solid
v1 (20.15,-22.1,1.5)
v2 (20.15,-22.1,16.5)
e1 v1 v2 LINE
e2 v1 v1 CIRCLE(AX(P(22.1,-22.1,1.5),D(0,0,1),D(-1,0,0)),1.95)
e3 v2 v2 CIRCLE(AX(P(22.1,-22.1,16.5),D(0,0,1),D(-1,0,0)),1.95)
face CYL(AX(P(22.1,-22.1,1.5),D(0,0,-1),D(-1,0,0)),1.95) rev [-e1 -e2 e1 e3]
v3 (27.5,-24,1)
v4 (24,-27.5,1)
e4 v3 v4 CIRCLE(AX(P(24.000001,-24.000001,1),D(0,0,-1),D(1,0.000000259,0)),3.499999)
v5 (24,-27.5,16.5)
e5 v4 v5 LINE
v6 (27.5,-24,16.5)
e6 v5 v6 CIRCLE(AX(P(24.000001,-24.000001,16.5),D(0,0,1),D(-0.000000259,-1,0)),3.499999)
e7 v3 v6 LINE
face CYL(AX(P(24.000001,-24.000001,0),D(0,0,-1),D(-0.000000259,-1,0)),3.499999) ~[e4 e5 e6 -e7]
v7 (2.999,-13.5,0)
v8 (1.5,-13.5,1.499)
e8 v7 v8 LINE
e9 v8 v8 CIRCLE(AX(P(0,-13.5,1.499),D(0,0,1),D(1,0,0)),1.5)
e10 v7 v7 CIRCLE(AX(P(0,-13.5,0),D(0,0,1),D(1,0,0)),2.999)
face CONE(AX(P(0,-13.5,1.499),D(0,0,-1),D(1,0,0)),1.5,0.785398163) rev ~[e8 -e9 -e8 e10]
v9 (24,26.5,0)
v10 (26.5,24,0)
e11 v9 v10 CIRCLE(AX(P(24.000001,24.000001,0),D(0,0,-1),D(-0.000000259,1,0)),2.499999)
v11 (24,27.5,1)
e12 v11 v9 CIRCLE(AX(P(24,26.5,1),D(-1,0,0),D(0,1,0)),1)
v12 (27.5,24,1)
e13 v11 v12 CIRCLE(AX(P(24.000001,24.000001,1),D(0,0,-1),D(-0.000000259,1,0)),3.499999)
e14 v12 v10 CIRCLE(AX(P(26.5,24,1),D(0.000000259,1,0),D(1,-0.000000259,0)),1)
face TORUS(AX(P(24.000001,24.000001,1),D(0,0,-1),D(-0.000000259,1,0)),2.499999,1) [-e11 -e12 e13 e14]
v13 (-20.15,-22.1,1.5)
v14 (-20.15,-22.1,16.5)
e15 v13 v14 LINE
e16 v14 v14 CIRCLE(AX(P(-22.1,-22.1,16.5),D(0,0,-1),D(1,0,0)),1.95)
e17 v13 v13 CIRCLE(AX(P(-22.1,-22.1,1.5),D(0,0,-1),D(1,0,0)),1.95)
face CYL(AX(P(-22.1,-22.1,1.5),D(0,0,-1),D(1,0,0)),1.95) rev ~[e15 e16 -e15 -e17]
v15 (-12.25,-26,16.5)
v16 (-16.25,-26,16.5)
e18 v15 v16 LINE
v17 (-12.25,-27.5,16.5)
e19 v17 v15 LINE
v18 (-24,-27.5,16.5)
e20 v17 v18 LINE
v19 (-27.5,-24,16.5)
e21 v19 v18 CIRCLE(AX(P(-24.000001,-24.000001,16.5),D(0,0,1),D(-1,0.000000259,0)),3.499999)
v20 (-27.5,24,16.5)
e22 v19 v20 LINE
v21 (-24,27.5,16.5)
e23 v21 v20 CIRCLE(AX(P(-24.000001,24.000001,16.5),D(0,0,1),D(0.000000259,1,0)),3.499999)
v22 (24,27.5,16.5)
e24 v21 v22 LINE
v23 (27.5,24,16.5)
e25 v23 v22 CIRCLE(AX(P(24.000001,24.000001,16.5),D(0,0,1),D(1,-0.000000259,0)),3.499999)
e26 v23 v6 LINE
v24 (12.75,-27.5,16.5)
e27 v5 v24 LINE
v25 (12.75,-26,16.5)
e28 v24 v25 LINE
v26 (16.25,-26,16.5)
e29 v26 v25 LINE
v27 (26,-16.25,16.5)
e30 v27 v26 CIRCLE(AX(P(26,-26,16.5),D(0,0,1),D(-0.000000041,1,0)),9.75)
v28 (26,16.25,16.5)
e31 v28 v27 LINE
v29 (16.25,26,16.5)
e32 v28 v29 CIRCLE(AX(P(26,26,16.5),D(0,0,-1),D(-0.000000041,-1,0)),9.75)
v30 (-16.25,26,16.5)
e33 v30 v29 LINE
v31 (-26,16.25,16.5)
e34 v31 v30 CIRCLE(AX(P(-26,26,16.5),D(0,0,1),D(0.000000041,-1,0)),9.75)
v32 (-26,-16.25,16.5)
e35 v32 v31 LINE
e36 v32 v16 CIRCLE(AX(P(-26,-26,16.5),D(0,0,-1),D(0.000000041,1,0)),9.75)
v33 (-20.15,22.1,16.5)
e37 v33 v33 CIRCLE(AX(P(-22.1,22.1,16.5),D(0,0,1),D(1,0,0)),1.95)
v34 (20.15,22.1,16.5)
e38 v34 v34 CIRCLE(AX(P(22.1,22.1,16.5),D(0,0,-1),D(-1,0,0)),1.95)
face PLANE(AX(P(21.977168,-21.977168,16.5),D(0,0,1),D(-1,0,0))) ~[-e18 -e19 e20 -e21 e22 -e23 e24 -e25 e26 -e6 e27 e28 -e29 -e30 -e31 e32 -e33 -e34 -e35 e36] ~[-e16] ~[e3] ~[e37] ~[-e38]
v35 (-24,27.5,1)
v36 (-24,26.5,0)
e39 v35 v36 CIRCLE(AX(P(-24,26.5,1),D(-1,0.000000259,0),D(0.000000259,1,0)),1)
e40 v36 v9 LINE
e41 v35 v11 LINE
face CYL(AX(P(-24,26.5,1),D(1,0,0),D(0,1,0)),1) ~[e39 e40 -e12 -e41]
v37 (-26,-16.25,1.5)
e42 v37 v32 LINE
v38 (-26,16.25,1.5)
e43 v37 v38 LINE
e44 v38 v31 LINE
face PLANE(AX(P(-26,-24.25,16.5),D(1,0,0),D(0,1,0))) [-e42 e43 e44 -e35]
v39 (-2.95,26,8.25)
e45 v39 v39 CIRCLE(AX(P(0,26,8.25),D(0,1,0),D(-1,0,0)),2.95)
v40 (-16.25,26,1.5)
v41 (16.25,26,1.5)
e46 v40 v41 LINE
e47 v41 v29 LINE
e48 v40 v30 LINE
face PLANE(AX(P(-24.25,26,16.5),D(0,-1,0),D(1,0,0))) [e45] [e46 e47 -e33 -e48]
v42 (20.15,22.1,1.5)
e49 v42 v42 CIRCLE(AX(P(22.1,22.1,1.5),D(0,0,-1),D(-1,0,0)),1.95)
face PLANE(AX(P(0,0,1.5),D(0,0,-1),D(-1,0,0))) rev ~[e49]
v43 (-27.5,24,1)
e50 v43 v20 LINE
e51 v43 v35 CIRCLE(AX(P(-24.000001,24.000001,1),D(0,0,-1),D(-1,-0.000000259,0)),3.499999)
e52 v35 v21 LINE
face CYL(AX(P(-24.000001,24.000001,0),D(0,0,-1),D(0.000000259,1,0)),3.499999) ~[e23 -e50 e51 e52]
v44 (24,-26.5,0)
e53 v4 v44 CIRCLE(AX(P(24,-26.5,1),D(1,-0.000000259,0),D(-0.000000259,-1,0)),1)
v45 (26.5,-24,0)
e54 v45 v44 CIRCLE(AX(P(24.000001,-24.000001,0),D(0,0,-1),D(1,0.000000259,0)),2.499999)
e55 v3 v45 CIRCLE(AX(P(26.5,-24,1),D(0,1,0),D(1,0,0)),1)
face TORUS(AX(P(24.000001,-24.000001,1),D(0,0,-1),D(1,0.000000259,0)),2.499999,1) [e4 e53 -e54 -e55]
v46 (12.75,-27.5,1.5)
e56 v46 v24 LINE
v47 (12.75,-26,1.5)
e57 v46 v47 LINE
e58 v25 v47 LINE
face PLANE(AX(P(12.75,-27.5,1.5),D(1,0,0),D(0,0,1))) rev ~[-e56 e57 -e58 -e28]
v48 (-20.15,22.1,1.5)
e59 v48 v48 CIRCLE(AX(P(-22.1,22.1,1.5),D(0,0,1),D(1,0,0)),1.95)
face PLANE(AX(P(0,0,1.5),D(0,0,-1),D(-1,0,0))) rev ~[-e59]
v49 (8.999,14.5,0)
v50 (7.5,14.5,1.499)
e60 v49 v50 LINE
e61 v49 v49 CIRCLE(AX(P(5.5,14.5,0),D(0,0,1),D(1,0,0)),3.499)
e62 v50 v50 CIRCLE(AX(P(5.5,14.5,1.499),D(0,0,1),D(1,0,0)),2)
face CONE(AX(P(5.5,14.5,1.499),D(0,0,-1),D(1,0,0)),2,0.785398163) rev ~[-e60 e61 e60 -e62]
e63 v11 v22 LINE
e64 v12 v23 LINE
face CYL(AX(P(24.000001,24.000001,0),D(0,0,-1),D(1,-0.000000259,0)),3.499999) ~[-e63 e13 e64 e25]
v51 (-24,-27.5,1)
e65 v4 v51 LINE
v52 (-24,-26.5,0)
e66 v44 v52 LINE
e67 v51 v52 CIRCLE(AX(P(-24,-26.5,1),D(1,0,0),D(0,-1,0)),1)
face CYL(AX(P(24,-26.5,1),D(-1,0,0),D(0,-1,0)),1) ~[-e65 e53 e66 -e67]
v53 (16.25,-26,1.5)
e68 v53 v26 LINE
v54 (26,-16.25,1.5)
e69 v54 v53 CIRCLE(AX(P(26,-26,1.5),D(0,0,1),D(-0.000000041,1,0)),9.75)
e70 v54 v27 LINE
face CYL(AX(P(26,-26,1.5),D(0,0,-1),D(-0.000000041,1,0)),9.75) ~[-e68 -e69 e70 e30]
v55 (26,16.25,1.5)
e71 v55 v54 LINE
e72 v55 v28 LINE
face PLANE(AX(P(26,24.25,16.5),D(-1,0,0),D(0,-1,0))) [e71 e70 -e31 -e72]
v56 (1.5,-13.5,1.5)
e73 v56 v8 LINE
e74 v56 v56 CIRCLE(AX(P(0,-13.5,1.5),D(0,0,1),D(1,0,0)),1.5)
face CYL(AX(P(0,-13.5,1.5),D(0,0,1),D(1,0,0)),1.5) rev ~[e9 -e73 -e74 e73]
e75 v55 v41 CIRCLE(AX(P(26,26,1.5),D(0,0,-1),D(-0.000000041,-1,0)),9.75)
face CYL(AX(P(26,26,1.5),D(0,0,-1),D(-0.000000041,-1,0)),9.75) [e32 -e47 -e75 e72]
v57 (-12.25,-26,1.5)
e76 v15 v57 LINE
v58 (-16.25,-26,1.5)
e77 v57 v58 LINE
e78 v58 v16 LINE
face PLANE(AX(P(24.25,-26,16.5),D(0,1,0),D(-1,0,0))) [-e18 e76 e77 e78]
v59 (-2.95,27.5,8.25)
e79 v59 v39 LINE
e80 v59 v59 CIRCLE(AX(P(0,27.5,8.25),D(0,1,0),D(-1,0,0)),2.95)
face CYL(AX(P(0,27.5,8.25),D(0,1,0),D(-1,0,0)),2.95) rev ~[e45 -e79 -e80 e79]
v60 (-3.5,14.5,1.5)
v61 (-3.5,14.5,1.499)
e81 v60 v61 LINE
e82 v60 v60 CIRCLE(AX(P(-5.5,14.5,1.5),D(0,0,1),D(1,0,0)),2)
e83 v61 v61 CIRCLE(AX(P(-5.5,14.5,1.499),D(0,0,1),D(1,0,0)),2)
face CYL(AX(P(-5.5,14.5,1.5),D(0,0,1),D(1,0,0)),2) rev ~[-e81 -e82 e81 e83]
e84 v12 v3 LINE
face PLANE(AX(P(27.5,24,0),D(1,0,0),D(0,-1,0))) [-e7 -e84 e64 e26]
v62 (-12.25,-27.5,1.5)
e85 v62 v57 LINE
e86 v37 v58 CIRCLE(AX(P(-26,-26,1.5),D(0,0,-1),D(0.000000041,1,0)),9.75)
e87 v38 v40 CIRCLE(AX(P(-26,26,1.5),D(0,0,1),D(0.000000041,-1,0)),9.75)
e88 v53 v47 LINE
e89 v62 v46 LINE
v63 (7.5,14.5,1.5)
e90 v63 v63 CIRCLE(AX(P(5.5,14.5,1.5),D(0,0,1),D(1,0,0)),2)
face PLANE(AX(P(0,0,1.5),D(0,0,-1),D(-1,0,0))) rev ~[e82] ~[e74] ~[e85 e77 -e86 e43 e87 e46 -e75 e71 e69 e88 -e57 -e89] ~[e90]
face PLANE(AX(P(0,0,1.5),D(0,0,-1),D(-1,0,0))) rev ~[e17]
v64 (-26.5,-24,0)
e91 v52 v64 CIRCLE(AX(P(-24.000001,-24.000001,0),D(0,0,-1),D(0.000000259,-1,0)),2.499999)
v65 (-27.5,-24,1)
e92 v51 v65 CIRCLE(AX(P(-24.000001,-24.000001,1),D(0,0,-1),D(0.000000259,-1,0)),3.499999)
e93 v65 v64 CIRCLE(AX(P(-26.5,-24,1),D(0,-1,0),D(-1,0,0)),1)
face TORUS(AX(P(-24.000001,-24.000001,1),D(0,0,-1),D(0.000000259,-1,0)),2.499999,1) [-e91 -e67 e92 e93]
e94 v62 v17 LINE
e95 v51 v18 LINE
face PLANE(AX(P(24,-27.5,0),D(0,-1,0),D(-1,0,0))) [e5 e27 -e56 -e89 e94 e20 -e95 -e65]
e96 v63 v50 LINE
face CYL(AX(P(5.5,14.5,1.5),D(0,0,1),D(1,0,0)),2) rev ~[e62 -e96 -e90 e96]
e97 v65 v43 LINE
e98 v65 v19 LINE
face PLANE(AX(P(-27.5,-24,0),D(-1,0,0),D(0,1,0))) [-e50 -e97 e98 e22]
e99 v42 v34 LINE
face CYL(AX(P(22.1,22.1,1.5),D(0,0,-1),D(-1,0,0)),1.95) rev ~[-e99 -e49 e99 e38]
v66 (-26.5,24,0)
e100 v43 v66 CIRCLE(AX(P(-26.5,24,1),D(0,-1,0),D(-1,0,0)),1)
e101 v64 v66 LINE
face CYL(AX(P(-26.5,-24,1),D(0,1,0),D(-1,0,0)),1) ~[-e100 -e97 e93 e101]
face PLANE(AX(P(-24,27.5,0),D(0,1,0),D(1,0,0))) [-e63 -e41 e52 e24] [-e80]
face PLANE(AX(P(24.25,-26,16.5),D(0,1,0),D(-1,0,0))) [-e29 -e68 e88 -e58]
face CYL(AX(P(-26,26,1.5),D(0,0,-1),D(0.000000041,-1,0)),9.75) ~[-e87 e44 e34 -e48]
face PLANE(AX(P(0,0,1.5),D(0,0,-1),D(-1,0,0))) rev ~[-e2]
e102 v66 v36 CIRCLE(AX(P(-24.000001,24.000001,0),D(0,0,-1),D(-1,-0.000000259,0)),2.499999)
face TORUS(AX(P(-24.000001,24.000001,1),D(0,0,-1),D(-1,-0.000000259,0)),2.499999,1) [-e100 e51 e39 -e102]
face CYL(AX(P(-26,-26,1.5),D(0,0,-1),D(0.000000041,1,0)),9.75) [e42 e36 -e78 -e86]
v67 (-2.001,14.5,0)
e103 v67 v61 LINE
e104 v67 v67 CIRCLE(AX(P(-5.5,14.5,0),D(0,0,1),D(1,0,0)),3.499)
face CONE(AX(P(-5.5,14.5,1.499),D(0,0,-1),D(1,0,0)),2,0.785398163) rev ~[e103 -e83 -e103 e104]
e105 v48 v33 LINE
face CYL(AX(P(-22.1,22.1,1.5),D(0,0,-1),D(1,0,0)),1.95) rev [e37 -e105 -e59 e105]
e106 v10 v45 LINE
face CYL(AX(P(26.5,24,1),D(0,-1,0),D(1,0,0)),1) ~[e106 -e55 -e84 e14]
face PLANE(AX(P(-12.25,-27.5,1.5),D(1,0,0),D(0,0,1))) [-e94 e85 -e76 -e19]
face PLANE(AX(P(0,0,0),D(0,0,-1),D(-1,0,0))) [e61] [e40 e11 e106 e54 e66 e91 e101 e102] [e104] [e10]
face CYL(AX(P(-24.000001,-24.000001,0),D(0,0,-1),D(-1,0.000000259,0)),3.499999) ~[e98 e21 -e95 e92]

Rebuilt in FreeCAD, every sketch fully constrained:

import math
import FreeCAD as App
import Part
import Sketcher
from FreeCAD import Vector
Q = App.Units.Quantity


def edges_at(feature, points):
    """Names of the edges that pass closest to the given points."""
    edges = feature.Shape.Edges
    near = lambda p: min(range(len(edges)), key=lambda i: edges[i].distToShape(Part.Vertex(*p))[0])
    return sorted({f"Edge{near(p) + 1}" for p in points})


def add_polygon(sketch, points):
    """Adds a closed chain of lines whose ends are joined by coincident constraints."""
    first, n = sketch.GeometryCount, len(points)
    for a, b in zip(points, points[1:] + points[:1]):
        sketch.addGeometry(Part.LineSegment(App.Vector(*a, 0), App.Vector(*b, 0)), False)
    for i in range(n):
        sketch.addConstraint(Sketcher.Constraint("Coincident", first + i, 2, first + (i + 1) % n, 1))

doc = App.newDocument("Part")
params = doc.addObject("Spreadsheet::Sheet", "Params")
for row, (alias, value) in enumerate([
    ("sketch1_radius", "3.499999 mm"),
    ("sketch1_width", "48 mm"),
    ("pad1_length", "16.5 mm"),
    ("sketch2_radius", "1.75 mm"),
    ("sketch2_width", "48.5 mm"),
    ("pocket1_length", "15 mm"),
    ("sketch3_diameter", "3.9 mm"),
    ("sketch3_radius", "9.75 mm"),
    ("pad2_length", "15 mm"),
    ("sketch4_diameter", "3.9 mm"),
    ("sketch4_radius", "9.75 mm"),
    ("pad3_length", "15 mm"),
    ("fillet_radius", "1 mm"),
    ("sketch5_width", "25 mm"),
    ("sketch5_height", "15 mm"),
    ("pocket2_length", "5 mm"),
    ("sketch6_diameter", "3 mm"),
    ("sketch6_diameter2", "4 mm"),
    ("pocket3_length", "5 mm"),
    ("sketch7_diameter", "5.9 mm"),
    ("pocket4_length", "5 mm"),
    ("chamfer_size", "1.499 mm"),
], start=1):
    params.set(f"A{row}", alias)
    params.set(f"B{row}", "=" + value)
    params.setAlias(f"B{row}", alias)

body = doc.addObject("PartDesign::Body", "Body")

sketch1 = body.newObject("Sketcher::SketchObject", "Sketch")
sketch1.AttachmentSupport = (doc.getObject("XY_Plane"), [""])
sketch1.MapMode = "FlatFace"
sketch1.addGeometry([
    Part.LineSegment(Vector(24, 27.5, 0), Vector(-24, 27.5, 0)),
    Part.ArcOfCircle(Part.Circle(Vector(-24, 24, 0), Vector(0, 0, 1), 3.5), math.radians(90), math.radians(180)),
    Part.LineSegment(Vector(-27.5, 24, 0), Vector(-27.5, -24, 0)),
    Part.ArcOfCircle(Part.Circle(Vector(-24, -24, 0), Vector(0, 0, 1), 3.5), math.radians(180), math.radians(270)),
    Part.LineSegment(Vector(-24, -27.5, 0), Vector(24, -27.5, 0)),
    Part.ArcOfCircle(Part.Circle(Vector(24, -24, 0), Vector(0, 0, 1), 3.5), math.radians(-90), math.radians(0)),
    Part.LineSegment(Vector(27.5, -24, 0), Vector(27.5, 24, 0)),
    Part.ArcOfCircle(Part.Circle(Vector(24, 24, 0), Vector(0, 0, 1), 3.5), math.radians(0), math.radians(90)),
], False)
sketch1.addConstraint([
    Sketcher.Constraint("Tangent", 0, 2, 1, 1),
    Sketcher.Constraint("Tangent", 1, 2, 2, 1),
    Sketcher.Constraint("Tangent", 2, 2, 3, 1),
    Sketcher.Constraint("Tangent", 3, 2, 4, 1),
    Sketcher.Constraint("Tangent", 4, 2, 5, 1),
    Sketcher.Constraint("Tangent", 5, 2, 6, 1),
    Sketcher.Constraint("Tangent", 6, 2, 7, 1),
    Sketcher.Constraint("Tangent", 7, 2, 0, 1),
    Sketcher.Constraint("Horizontal", 0),
    Sketcher.Constraint("Vertical", 2),
    Sketcher.Constraint("Horizontal", 4),
    Sketcher.Constraint("Vertical", 6),
    Sketcher.Constraint("Equal", 1, 3),
    Sketcher.Constraint("Equal", 3, 5),
    Sketcher.Constraint("Equal", 5, 7),
    Sketcher.Constraint("Symmetric", 1, 3, 5, 3, -1, 1),
    Sketcher.Constraint("Equal", 4, 2),
    Sketcher.Constraint("Radius", 1, Q("3.499999 mm")),
    Sketcher.Constraint("DistanceX", 0, 2, 0, 1, Q("48 mm")),
])
sketch1.setExpression("Constraints[17]", "Params.sketch1_radius")
sketch1.setExpression("Constraints[18]", "Params.sketch1_width")
pad1 = body.newObject("PartDesign::Pad", "Pad")
pad1.Profile = sketch1
pad1.setExpression("Length", "Params.pad1_length")

sketch2 = body.newObject("Sketcher::SketchObject", "Sketch001")
sketch2.AttachmentSupport = (doc.getObject("XY_Plane"), [""])
sketch2.MapMode = "FlatFace"
sketch2.AttachmentOffset = App.Placement(Vector(0, 0, 16.5), App.Rotation())
sketch2.addGeometry([
    Part.LineSegment(Vector(24.2, 26, 0), Vector(-24.2, 26, 0)),
    Part.ArcOfCircle(Part.Circle(Vector(-24.3, 24.3, 0), Vector(0, 0, 1), 1.7), math.radians(90), math.radians(180)),
    Part.LineSegment(Vector(-26, 24.2, 0), Vector(-26, -24.2, 0)),
    Part.ArcOfCircle(Part.Circle(Vector(-24.3, -24.3, 0), Vector(0, 0, 1), 1.7), math.radians(180), math.radians(270)),
    Part.LineSegment(Vector(-24.2, -26, 0), Vector(24.2, -26, 0)),
    Part.ArcOfCircle(Part.Circle(Vector(24.3, -24.3, 0), Vector(0, 0, 1), 1.7), math.radians(-90), math.radians(0)),
    Part.LineSegment(Vector(26, -24.2, 0), Vector(26, 24.2, 0)),
    Part.ArcOfCircle(Part.Circle(Vector(24.3, 24.3, 0), Vector(0, 0, 1), 1.7), math.radians(0), math.radians(90)),
], False)
sketch2.addConstraint([
    Sketcher.Constraint("Tangent", 0, 2, 1, 1),
    Sketcher.Constraint("Tangent", 1, 2, 2, 1),
    Sketcher.Constraint("Tangent", 2, 2, 3, 1),
    Sketcher.Constraint("Tangent", 3, 2, 4, 1),
    Sketcher.Constraint("Tangent", 4, 2, 5, 1),
    Sketcher.Constraint("Tangent", 5, 2, 6, 1),
    Sketcher.Constraint("Tangent", 6, 2, 7, 1),
    Sketcher.Constraint("Tangent", 7, 2, 0, 1),
    Sketcher.Constraint("Horizontal", 0),
    Sketcher.Constraint("Vertical", 2),
    Sketcher.Constraint("Horizontal", 4),
    Sketcher.Constraint("Vertical", 6),
    Sketcher.Constraint("Equal", 1, 3),
    Sketcher.Constraint("Equal", 3, 5),
    Sketcher.Constraint("Equal", 5, 7),
    Sketcher.Constraint("Symmetric", 1, 3, 5, 3, -1, 1),
    Sketcher.Constraint("Equal", 4, 2),
    Sketcher.Constraint("Radius", 1, Q("1.75 mm")),
    Sketcher.Constraint("DistanceX", 0, 2, 0, 1, Q("48.5 mm")),
])
sketch2.setExpression("Constraints[17]", "Params.sketch2_radius")
sketch2.setExpression("Constraints[18]", "Params.sketch2_width")
pocket1 = body.newObject("PartDesign::Pocket", "Pocket")
pocket1.Profile = sketch2
pocket1.setExpression("Length", "Params.pocket1_length")

sketch3 = body.newObject("Sketcher::SketchObject", "Sketch002")
sketch3.AttachmentSupport = (doc.getObject("XY_Plane"), [""])
sketch3.MapMode = "FlatFace"
sketch3.AttachmentOffset = App.Placement(Vector(0, 0, 1.5), App.Rotation())
sketch3.addGeometry([
    Part.LineSegment(Vector(-26, 26, 0), Vector(-26, 16.2, 0)),
    Part.ArcOfCircle(Part.Circle(Vector(-26, 26, 0), Vector(0, 0, 1), 9.8), math.radians(-90), math.radians(0)),
    Part.LineSegment(Vector(-16.2, 26, 0), Vector(-26, 26, 0)),
    Part.Circle(Vector(-22.1, 22.1, 0), Vector(0, 0, 1), 1.9),
], False)
sketch3.addConstraint([
    Sketcher.Constraint("Coincident", 0, 2, 1, 1),
    Sketcher.Constraint("Coincident", 1, 2, 2, 1),
    Sketcher.Constraint("Coincident", 2, 2, 0, 1),
    Sketcher.Constraint("Vertical", 0),
    Sketcher.Constraint("Horizontal", 2),
    Sketcher.Constraint("Coincident", 2, 2, 1, 3),
    Sketcher.Constraint("Diameter", 3, Q("3.9 mm")),
    Sketcher.Constraint("Radius", 1, Q("9.75 mm")),
    Sketcher.Constraint("DistanceX", 1, 3, -1, 1, Q("26 mm")),
    Sketcher.Constraint("DistanceY", -1, 1, 1, 3, Q("26 mm")),
    Sketcher.Constraint("DistanceX", 3, 3, -1, 1, Q("22.1 mm")),
    Sketcher.Constraint("DistanceY", -1, 1, 3, 3, Q("22.1 mm")),
])
sketch3.setExpression("Constraints[6]", "Params.sketch3_diameter")
sketch3.setExpression("Constraints[7]", "Params.sketch3_radius")
pad2 = body.newObject("PartDesign::Pad", "Pad001")
pad2.Profile = sketch3
pad2.setExpression("Length", "Params.pad2_length")

sketch4 = body.newObject("Sketcher::SketchObject", "Sketch003")
sketch4.AttachmentSupport = (doc.getObject("XY_Plane"), [""])
sketch4.MapMode = "FlatFace"
sketch4.AttachmentOffset = App.Placement(Vector(0, 0, 1.5), App.Rotation())
sketch4.addGeometry([
    Part.LineSegment(Vector(26, 26, 0), Vector(26, 16.2, 0)),
    Part.ArcOfCircle(Part.Circle(Vector(26, 26, 0), Vector(0, 0, 1), 9.8), math.radians(-180), math.radians(-90)),
    Part.LineSegment(Vector(16.2, 26, 0), Vector(26, 26, 0)),
    Part.Circle(Vector(22.1, 22.1, 0), Vector(0, 0, 1), 1.9),
], False)
sketch4.addConstraint([
    Sketcher.Constraint("Coincident", 0, 2, 1, 2),
    Sketcher.Constraint("Coincident", 1, 1, 2, 1),
    Sketcher.Constraint("Coincident", 2, 2, 0, 1),
    Sketcher.Constraint("Vertical", 0),
    Sketcher.Constraint("Horizontal", 2),
    Sketcher.Constraint("Coincident", 2, 2, 1, 3),
    Sketcher.Constraint("Diameter", 3, Q("3.9 mm")),
    Sketcher.Constraint("Radius", 1, Q("9.75 mm")),
    Sketcher.Constraint("DistanceX", -1, 1, 1, 3, Q("26 mm")),
    Sketcher.Constraint("DistanceY", -1, 1, 1, 3, Q("26 mm")),
    Sketcher.Constraint("DistanceX", -1, 1, 3, 3, Q("22.1 mm")),
    Sketcher.Constraint("DistanceY", -1, 1, 3, 3, Q("22.1 mm")),
])
sketch4.setExpression("Constraints[6]", "Params.sketch4_diameter")
sketch4.setExpression("Constraints[7]", "Params.sketch4_radius")
pad3 = body.newObject("PartDesign::Pad", "Pad002")
pad3.Profile = sketch4
pad3.setExpression("Length", "Params.pad3_length")
doc.recompute()

mirrored = body.newObject("PartDesign::Mirrored", "Mirrored")
mirrored.Originals = [pad2, pad3]
mirrored.MirrorPlane = (doc.getObject("XZ_Plane"), [""])
body.Tip = mirrored
doc.recompute()

fillet = body.newObject("PartDesign::Fillet", "Fillet")
fillet.Base = (mirrored, edges_at(mirrored, [
    (-27.5, 0, 0),
    (-26.475, 26.475, 0),
    (0, 27.5, 0),
    (26.475, 26.475, 0),
    (27.5, 0, 0),
    (26.475, -26.475, 0),
    (0, -27.5, 0),
    (-26.475, -26.475, 0),
]))
fillet.setExpression("Radius", "Params.fillet_radius")

sketch5 = body.newObject("Sketcher::SketchObject", "Sketch004")
sketch5.AttachmentSupport = (doc.getObject("XZ_Plane"), [""])
sketch5.MapMode = "FlatFace"
sketch5.AttachmentOffset = App.Placement(Vector(0, 0, 27.5), App.Rotation())
add_polygon(sketch5, [(-12, 16), (-12, 2), (13, 2), (13, 16)])
sketch5.addConstraint([
    Sketcher.Constraint("Vertical", 0),
    Sketcher.Constraint("Horizontal", 1),
    Sketcher.Constraint("Vertical", 2),
    Sketcher.Constraint("Horizontal", 3),
    Sketcher.Constraint("DistanceX", 1, 1, 1, 2, Q("25 mm")),
    Sketcher.Constraint("DistanceY", 0, 2, 0, 1, Q("15 mm")),
    Sketcher.Constraint("DistanceY", -1, 1, 0, 2, Q("1.5 mm")),
    Sketcher.Constraint("DistanceX", 0, 2, -1, 1, Q("12.25 mm")),
])
sketch5.setExpression("Constraints[8]", "Params.sketch5_width")
sketch5.setExpression("Constraints[9]", "Params.sketch5_height")
pocket2 = body.newObject("PartDesign::Pocket", "Pocket001")
pocket2.Profile = sketch5
pocket2.setExpression("Length", "Params.pocket2_length")

sketch6 = body.newObject("Sketcher::SketchObject", "Sketch005")
sketch6.AttachmentSupport = (doc.getObject("XY_Plane"), [""])
sketch6.MapMode = "FlatFace"
sketch6.AttachmentOffset = App.Placement(Vector(0, 0, 1.5), App.Rotation())
sketch6.addGeometry([
    Part.Circle(Vector(0, -13.5, 0), Vector(0, 0, 1), 1.5),
    Part.Circle(Vector(-5.5, 14.5, 0), Vector(0, 0, 1), 2),
    Part.Circle(Vector(5.5, 14.5, 0), Vector(0, 0, 1), 2),
], False)
sketch6.addConstraint([
    Sketcher.Constraint("Equal", 1, 2),
    Sketcher.Constraint("Symmetric", 1, 3, 2, 3, -2),
    Sketcher.Constraint("PointOnObject", 0, 3, -2),
    Sketcher.Constraint("Diameter", 0, Q("3 mm")),
    Sketcher.Constraint("Diameter", 1, Q("4 mm")),
    Sketcher.Constraint("DistanceY", 0, 3, 1, 3, Q("28 mm")),
    Sketcher.Constraint("DistanceX", 1, 3, 2, 3, Q("11 mm")),
    Sketcher.Constraint("DistanceY", 0, 3, -1, 1, Q("13.5 mm")),
])
sketch6.setExpression("Constraints[3]", "Params.sketch6_diameter")
sketch6.setExpression("Constraints[4]", "Params.sketch6_diameter2")
pocket3 = body.newObject("PartDesign::Pocket", "Pocket002")
pocket3.Profile = sketch6
pocket3.setExpression("Length", "Params.pocket3_length")

sketch7 = body.newObject("Sketcher::SketchObject", "Sketch006")
sketch7.AttachmentSupport = (doc.getObject("XZ_Plane"), [""])
sketch7.MapMode = "FlatFace"
sketch7.AttachmentOffset = App.Placement(Vector(0, 0, -27.5), App.Rotation())
sketch7.addGeometry(Part.Circle(Vector(0, 8.2, 0), Vector(0, 0, 1), 3), False)
sketch7.addConstraint([
    Sketcher.Constraint("PointOnObject", 0, 3, -2),
    Sketcher.Constraint("Diameter", 0, Q("5.9 mm")),
    Sketcher.Constraint("DistanceY", -1, 1, 0, 3, Q("8.25 mm")),
])
sketch7.setExpression("Constraints[1]", "Params.sketch7_diameter")
pocket4 = body.newObject("PartDesign::Pocket", "Pocket003")
pocket4.Profile = sketch7
pocket4.setExpression("Length", "Params.pocket4_length")
pocket4.Reversed = True
doc.recompute()

chamfer = body.newObject("PartDesign::Chamfer", "Chamfer")
chamfer.Base = (pocket4, edges_at(pocket4, [(3.5, 14.5, 0), (-7.5, 14.5, 0), (-1.5, -13.5, 0)]))
chamfer.setExpression("Size", "Params.chamfer_size")

doc.recompute()
